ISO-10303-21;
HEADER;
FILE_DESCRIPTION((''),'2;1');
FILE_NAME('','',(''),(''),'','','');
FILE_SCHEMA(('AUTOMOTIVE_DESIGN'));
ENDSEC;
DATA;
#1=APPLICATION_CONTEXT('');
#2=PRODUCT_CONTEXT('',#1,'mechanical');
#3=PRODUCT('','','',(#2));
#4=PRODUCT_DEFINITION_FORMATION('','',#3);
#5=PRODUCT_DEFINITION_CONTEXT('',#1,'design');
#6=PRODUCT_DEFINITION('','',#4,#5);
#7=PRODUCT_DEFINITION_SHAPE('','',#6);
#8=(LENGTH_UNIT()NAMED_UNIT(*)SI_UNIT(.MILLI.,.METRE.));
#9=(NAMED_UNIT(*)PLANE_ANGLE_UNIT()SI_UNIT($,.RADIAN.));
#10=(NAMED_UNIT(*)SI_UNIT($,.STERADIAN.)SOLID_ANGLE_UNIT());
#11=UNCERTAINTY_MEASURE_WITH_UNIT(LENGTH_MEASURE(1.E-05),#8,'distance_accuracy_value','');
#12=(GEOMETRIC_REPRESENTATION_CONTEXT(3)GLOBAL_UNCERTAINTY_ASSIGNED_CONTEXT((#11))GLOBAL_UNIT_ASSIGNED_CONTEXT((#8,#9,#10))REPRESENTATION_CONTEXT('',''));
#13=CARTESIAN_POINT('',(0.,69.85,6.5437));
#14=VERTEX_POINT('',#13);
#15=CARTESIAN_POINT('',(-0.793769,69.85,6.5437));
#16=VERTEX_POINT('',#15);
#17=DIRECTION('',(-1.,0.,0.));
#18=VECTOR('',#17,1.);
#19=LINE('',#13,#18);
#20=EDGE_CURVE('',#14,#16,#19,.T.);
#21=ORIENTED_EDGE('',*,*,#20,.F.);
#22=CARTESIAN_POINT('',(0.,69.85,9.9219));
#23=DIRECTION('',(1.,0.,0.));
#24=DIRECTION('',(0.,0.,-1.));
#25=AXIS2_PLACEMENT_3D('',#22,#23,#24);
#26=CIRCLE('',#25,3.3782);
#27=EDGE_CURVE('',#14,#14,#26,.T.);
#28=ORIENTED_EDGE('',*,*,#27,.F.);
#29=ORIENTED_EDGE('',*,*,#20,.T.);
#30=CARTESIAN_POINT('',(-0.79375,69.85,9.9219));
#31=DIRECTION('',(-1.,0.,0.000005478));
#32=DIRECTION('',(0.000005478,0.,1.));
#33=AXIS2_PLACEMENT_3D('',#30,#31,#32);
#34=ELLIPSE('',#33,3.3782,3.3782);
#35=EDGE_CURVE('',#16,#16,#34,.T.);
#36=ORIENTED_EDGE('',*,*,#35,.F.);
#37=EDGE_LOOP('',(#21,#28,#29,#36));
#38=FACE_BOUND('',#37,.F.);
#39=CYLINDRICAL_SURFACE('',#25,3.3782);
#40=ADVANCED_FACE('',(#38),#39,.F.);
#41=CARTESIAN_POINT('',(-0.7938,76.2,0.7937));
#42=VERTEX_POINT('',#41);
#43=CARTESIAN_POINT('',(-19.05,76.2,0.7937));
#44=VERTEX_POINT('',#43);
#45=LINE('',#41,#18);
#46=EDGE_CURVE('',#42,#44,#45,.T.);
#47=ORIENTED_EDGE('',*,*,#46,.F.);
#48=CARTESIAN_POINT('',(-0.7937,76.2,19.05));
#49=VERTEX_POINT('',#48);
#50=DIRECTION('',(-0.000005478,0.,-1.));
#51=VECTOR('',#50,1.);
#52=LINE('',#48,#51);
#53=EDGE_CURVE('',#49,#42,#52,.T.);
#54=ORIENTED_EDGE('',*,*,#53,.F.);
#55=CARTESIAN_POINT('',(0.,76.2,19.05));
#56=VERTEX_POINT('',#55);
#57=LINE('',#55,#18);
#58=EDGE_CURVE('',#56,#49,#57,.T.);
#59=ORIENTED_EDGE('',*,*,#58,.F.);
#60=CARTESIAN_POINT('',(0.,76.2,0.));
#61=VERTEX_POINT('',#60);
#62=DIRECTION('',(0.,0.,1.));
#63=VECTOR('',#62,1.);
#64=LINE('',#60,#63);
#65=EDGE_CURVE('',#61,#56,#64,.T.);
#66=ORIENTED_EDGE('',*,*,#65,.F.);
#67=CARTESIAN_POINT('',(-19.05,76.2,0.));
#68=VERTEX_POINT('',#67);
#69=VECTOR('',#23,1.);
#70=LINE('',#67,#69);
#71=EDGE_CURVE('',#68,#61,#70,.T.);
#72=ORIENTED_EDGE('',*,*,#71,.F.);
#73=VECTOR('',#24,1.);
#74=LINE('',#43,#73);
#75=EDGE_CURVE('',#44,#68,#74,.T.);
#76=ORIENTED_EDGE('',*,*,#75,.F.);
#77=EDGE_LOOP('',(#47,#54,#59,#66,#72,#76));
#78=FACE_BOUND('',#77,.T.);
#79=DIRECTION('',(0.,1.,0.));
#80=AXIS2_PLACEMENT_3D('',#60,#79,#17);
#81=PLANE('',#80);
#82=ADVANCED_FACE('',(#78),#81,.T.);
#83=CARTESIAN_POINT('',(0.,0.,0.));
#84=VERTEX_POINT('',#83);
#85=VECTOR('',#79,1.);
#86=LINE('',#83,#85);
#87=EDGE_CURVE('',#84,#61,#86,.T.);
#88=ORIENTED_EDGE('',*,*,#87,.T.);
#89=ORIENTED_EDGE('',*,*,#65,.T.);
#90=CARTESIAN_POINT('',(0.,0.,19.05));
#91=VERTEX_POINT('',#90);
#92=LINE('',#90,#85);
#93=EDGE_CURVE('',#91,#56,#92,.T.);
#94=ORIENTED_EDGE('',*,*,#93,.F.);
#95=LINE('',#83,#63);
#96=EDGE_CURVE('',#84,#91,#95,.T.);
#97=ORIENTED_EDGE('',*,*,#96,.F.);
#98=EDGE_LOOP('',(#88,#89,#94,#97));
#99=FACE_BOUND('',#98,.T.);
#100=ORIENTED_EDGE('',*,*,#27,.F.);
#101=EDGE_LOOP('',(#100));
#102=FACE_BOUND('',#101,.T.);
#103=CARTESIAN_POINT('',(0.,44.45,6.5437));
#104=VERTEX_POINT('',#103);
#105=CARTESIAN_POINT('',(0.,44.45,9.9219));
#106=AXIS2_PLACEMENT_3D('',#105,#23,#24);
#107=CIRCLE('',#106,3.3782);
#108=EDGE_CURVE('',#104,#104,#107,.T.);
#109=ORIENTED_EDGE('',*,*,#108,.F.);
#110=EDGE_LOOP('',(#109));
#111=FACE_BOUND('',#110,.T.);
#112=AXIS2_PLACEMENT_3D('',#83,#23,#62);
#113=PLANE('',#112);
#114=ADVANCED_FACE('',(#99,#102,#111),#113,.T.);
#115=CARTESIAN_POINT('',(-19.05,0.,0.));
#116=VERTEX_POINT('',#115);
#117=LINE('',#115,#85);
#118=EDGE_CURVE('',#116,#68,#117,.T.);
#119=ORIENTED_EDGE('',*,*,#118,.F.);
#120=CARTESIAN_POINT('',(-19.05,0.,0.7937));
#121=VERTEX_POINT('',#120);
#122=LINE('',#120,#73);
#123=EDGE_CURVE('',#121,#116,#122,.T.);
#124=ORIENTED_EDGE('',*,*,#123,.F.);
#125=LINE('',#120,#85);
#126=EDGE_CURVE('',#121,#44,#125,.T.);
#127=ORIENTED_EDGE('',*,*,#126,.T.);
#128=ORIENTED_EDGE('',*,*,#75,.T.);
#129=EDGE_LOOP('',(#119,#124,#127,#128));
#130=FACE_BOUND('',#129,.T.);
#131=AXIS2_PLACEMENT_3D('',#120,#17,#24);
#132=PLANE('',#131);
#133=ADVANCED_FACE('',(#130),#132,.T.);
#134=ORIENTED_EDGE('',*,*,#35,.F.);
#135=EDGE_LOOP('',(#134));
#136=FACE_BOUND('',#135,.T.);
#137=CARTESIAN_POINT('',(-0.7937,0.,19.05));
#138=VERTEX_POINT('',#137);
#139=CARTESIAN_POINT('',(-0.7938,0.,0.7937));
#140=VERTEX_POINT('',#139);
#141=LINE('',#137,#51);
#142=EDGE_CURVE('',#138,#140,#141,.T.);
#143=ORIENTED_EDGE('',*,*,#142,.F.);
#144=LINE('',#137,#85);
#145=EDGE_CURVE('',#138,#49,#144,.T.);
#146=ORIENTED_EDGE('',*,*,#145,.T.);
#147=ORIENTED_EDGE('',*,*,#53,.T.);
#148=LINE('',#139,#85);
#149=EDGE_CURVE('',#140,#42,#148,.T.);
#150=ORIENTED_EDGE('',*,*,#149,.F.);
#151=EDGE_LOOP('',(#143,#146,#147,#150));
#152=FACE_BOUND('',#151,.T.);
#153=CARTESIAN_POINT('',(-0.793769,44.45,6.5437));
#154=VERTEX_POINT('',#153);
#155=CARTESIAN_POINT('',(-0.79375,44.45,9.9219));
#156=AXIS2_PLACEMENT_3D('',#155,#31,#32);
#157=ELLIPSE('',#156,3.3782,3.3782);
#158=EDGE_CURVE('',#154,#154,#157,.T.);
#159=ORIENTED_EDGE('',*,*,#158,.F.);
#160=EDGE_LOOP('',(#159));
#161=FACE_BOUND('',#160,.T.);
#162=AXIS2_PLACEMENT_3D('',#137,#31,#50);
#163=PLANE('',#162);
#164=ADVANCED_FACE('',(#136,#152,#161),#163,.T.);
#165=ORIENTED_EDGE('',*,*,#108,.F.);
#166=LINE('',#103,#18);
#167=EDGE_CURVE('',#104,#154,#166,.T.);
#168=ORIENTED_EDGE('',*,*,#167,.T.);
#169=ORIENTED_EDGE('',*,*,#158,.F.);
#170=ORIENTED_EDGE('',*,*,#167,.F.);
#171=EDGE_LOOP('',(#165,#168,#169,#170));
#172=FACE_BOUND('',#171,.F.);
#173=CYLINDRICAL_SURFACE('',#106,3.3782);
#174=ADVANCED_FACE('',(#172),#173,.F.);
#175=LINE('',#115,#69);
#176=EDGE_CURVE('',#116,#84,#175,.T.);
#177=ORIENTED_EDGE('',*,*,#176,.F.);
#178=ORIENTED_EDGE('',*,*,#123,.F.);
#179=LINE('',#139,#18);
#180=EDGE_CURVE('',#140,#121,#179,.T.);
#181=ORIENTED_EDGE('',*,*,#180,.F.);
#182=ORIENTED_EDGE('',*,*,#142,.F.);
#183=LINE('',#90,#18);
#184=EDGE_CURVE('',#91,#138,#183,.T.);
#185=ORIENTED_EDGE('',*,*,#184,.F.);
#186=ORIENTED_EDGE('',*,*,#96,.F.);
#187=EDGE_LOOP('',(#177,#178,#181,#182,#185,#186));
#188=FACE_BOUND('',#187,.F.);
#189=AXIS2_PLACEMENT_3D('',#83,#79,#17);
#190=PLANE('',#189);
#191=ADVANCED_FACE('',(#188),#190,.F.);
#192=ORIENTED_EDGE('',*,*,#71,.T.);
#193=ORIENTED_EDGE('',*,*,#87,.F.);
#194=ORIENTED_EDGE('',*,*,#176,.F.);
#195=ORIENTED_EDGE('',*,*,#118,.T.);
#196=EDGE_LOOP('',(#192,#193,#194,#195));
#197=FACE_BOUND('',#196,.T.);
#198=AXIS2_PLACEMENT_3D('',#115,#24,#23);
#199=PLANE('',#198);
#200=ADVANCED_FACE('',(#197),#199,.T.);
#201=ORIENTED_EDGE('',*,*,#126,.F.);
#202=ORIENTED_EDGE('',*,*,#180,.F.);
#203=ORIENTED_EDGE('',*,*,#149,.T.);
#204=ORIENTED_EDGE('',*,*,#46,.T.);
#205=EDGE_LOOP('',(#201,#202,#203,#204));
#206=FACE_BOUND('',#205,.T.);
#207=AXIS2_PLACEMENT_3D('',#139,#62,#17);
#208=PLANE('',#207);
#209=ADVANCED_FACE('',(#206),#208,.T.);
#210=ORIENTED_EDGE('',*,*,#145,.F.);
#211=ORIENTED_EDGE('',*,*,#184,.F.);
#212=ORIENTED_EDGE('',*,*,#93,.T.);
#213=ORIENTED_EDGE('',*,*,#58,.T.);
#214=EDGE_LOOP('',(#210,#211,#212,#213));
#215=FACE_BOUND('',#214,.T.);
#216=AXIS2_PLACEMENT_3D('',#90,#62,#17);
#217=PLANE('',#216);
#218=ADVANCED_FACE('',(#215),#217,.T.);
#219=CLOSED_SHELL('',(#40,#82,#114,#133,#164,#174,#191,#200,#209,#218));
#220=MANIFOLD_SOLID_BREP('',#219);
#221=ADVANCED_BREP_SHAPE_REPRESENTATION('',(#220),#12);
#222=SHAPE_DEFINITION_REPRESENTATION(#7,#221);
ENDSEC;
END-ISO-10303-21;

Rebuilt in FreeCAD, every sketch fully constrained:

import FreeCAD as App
import Part
import Sketcher
from FreeCAD import Vector
Q = App.Units.Quantity

doc = App.newDocument("Part")
body = doc.addObject("PartDesign::Body", "Body")

# Sketch on XZ plane
sketch1 = doc.addObject("Sketcher::SketchObject", "Sketch")
body.addObject(sketch1)
sketch1.AttachmentSupport = (doc.XZ_Plane, [""])
sketch1.MapMode = "FlatFace"
sketch1.addGeometry([
    Part.LineSegment(Vector(0, 19.1, 0), Vector(0, 0, 0)),  # 0
    Part.LineSegment(Vector(0, 0, 0), Vector(-19.1, 0, 0)),  # 1
    Part.LineSegment(Vector(-19.1, 0, 0), Vector(-19.1, 0.8, 0)),  # 2
    Part.LineSegment(Vector(-19.1, 0.8, 0), Vector(-0.8, 0.8, 0)),  # 3
    Part.LineSegment(Vector(-0.8, 0.8, 0), Vector(-0.8, 19.1, 0)),  # 4
    Part.LineSegment(Vector(-0.8, 19.1, 0), Vector(0, 19.1, 0)),  # 5
], False)
sketch1.addConstraint([
    Sketcher.Constraint("Coincident", 0, 2, 1, 1),
    Sketcher.Constraint("Coincident", 1, 2, 2, 1),
    Sketcher.Constraint("Coincident", 2, 2, 3, 1),
    Sketcher.Constraint("Coincident", 3, 2, 4, 1),
    Sketcher.Constraint("Coincident", 4, 2, 5, 1),
    Sketcher.Constraint("Coincident", 5, 2, 0, 1),
    Sketcher.Constraint("Vertical", 0),
    Sketcher.Constraint("Horizontal", 1),
    Sketcher.Constraint("Vertical", 2),
    Sketcher.Constraint("Horizontal", 3),
    Sketcher.Constraint("Vertical", 4),
    Sketcher.Constraint("Horizontal", 5),
    Sketcher.Constraint("Coincident", 0, 2, -1, 1),
    Sketcher.Constraint("Equal", 1, 0),
    Sketcher.Constraint("Equal", 5, 2),
    Sketcher.Constraint("DistanceX", 1, 2, 1, 1, Q("0.75 in")),
    Sketcher.Constraint("DistanceX", 5, 1, 5, 2, Q("0.031248 in")),
])
pad1 = doc.addObject("PartDesign::Pad", "Pad")
body.addObject(pad1)
pad1.Profile = sketch1
pad1.Length = Q("3 in")
pad1.Reversed = True

# Sketch on YZ plane
sketch2 = doc.addObject("Sketcher::SketchObject", "Sketch001")
body.addObject(sketch2)
sketch2.AttachmentSupport = (doc.YZ_Plane, [""])
sketch2.MapMode = "FlatFace"
sketch2.addGeometry([
    Part.Circle(Vector(69.8, 9.9, 0), Vector(0, 0, 1), 3.4),
    Part.Circle(Vector(44.5, 9.9, 0), Vector(0, 0, 1), 3.4),
], False)
sketch2.addConstraint([
    Sketcher.Constraint("Equal", 0, 1),
    Sketcher.Constraint("Horizontal", 0, 3, 1, 3),
    Sketcher.Constraint("Diameter", 0, Q("0.266 in")),
    Sketcher.Constraint("DistanceX", 1, 3, 0, 3, Q("1 in")),
    Sketcher.Constraint("DistanceX", -1, 1, 0, 3, Q("2.75 in")),
    Sketcher.Constraint("DistanceY", -1, 1, 0, 3, Q("0.3906299 in")),
])
pocket1 = doc.addObject("PartDesign::Pocket", "Pocket")
body.addObject(pocket1)
pocket1.Profile = sketch2
pocket1.Type = "ThroughAll"

doc.recompute()
